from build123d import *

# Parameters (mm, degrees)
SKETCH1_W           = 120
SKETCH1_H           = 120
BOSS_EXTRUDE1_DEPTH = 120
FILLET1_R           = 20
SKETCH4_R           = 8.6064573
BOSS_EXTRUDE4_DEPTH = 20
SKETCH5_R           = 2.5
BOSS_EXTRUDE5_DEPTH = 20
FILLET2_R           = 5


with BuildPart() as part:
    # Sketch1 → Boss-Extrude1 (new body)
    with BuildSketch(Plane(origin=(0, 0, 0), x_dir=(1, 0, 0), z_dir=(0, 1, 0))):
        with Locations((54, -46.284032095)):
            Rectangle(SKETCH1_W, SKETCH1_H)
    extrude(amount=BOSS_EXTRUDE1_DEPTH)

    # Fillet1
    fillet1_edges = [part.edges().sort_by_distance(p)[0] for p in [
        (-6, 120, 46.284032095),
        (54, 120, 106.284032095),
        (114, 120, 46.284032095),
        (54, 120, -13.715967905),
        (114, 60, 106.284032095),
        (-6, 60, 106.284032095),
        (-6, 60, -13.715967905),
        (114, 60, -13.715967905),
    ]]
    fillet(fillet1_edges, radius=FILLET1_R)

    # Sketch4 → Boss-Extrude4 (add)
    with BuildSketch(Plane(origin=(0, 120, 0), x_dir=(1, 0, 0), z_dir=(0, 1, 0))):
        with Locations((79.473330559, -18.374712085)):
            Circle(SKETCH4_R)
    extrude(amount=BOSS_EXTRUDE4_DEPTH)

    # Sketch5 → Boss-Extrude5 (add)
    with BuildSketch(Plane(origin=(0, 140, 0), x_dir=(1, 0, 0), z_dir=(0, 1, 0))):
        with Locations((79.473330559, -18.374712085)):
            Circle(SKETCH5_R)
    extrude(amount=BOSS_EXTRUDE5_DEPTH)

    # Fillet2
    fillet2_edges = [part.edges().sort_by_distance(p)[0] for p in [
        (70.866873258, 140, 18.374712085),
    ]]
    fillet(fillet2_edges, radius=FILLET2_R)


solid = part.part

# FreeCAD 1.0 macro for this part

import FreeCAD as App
import Part
import Sketcher

V = App.Vector


def edges_at(feature, points):
    """Names of the edges that pass closest to the given points."""
    edges = feature.Shape.Edges
    near = lambda p: min(range(len(edges)), key=lambda i: edges[i].distToShape(Part.Vertex(*p))[0])
    return sorted({f"Edge{near(p) + 1}" for p in points})

doc = App.newDocument("Part")
body = doc.addObject("PartDesign::Body", "Body")

sketch1 = body.newObject("Sketcher::SketchObject", "Sketch")
sketch1.AttachmentSupport = (doc.getObject("XZ_Plane"), [""])
sketch1.MapMode = "FlatFace"
sketch1.addGeometry(Part.LineSegment(V(-6, -14, 0), V(-6, 106, 0)), False)
sketch1.addGeometry(Part.LineSegment(V(-6, 106, 0), V(114, 106, 0)), False)
sketch1.addGeometry(Part.LineSegment(V(114, 106, 0), V(114, -14, 0)), False)
sketch1.addGeometry(Part.LineSegment(V(114, -14, 0), V(-6, -14, 0)), False)
sketch1.addConstraint(Sketcher.Constraint("Coincident", 0, 2, 1, 1))
sketch1.addConstraint(Sketcher.Constraint("Coincident", 1, 2, 2, 1))
sketch1.addConstraint(Sketcher.Constraint("Coincident", 2, 2, 3, 1))
sketch1.addConstraint(Sketcher.Constraint("Coincident", 3, 2, 0, 1))
sketch1.addConstraint(Sketcher.Constraint("Vertical", 0))
sketch1.addConstraint(Sketcher.Constraint("Horizontal", 1))
sketch1.addConstraint(Sketcher.Constraint("Vertical", 2))
sketch1.addConstraint(Sketcher.Constraint("Horizontal", 3))
sketch1.addConstraint(Sketcher.Constraint("Equal", 3, 0))
sketch1.addConstraint(Sketcher.Constraint("DistanceX", 1, 1, 1, 2, 120.0))
sketch1.addConstraint(Sketcher.Constraint("DistanceX", 0, 2, -1, 1, 6.0))
sketch1.addConstraint(Sketcher.Constraint("DistanceY", -1, 1, 0, 2, 106.284032))
pad1 = body.newObject("PartDesign::Pad", "Pad")
pad1.Profile = sketch1
pad1.Length = 120
pad1.Reversed = True
doc.recompute()

fillet = body.newObject("PartDesign::Fillet", "Fillet")
fillet.Base = (pad1, edges_at(pad1, [
    (-6, 120, 46.284),
    (54, 120, 106.284),
    (114, 120, 46.284),
    (54, 120, -13.716),
    (114, 60, 106.284),
    (-6, 60, 106.284),
    (-6, 60, -13.716),
    (114, 60, -13.716),
]))
fillet.Radius = 20

sketch2 = body.newObject("Sketcher::SketchObject", "Sketch001")
sketch2.AttachmentSupport = (doc.getObject("XZ_Plane"), [""])
sketch2.MapMode = "FlatFace"
sketch2.AttachmentOffset = App.Placement(V(0, 0, -120), App.Rotation())
sketch2.addGeometry(Part.Circle(V(79, 18, 0), V(0, 0, 1), 9), False)
sketch2.addConstraint(Sketcher.Constraint("Diameter", 0, 17.212915))
sketch2.addConstraint(Sketcher.Constraint("DistanceX", -1, 1, 0, 3, 79.473331))
sketch2.addConstraint(Sketcher.Constraint("DistanceY", -1, 1, 0, 3, 18.374712))
pad2 = body.newObject("PartDesign::Pad", "Pad001")
pad2.Profile = sketch2
pad2.Length = 20
pad2.Reversed = True

sketch3 = body.newObject("Sketcher::SketchObject", "Sketch002")
sketch3.AttachmentSupport = (doc.getObject("XZ_Plane"), [""])
sketch3.MapMode = "FlatFace"
sketch3.AttachmentOffset = App.Placement(V(0, 0, -140), App.Rotation())
sketch3.addGeometry(Part.Circle(V(79.5, 18.4, 0), V(0, 0, 1), 2.5), False)
sketch3.addConstraint(Sketcher.Constraint("Diameter", 0, 5.0))
sketch3.addConstraint(Sketcher.Constraint("DistanceX", -1, 1, 0, 3, 79.473331))
sketch3.addConstraint(Sketcher.Constraint("DistanceY", -1, 1, 0, 3, 18.374712))
pad3 = body.newObject("PartDesign::Pad", "Pad002")
pad3.Profile = sketch3
pad3.Length = 20
pad3.Reversed = True
doc.recompute()

fillet2 = body.newObject("PartDesign::Fillet", "Fillet001")
fillet2.Base = (pad3, edges_at(pad3, [(70.867, 140, 18.375)]))
fillet2.Radius = 5

doc.recompute()
